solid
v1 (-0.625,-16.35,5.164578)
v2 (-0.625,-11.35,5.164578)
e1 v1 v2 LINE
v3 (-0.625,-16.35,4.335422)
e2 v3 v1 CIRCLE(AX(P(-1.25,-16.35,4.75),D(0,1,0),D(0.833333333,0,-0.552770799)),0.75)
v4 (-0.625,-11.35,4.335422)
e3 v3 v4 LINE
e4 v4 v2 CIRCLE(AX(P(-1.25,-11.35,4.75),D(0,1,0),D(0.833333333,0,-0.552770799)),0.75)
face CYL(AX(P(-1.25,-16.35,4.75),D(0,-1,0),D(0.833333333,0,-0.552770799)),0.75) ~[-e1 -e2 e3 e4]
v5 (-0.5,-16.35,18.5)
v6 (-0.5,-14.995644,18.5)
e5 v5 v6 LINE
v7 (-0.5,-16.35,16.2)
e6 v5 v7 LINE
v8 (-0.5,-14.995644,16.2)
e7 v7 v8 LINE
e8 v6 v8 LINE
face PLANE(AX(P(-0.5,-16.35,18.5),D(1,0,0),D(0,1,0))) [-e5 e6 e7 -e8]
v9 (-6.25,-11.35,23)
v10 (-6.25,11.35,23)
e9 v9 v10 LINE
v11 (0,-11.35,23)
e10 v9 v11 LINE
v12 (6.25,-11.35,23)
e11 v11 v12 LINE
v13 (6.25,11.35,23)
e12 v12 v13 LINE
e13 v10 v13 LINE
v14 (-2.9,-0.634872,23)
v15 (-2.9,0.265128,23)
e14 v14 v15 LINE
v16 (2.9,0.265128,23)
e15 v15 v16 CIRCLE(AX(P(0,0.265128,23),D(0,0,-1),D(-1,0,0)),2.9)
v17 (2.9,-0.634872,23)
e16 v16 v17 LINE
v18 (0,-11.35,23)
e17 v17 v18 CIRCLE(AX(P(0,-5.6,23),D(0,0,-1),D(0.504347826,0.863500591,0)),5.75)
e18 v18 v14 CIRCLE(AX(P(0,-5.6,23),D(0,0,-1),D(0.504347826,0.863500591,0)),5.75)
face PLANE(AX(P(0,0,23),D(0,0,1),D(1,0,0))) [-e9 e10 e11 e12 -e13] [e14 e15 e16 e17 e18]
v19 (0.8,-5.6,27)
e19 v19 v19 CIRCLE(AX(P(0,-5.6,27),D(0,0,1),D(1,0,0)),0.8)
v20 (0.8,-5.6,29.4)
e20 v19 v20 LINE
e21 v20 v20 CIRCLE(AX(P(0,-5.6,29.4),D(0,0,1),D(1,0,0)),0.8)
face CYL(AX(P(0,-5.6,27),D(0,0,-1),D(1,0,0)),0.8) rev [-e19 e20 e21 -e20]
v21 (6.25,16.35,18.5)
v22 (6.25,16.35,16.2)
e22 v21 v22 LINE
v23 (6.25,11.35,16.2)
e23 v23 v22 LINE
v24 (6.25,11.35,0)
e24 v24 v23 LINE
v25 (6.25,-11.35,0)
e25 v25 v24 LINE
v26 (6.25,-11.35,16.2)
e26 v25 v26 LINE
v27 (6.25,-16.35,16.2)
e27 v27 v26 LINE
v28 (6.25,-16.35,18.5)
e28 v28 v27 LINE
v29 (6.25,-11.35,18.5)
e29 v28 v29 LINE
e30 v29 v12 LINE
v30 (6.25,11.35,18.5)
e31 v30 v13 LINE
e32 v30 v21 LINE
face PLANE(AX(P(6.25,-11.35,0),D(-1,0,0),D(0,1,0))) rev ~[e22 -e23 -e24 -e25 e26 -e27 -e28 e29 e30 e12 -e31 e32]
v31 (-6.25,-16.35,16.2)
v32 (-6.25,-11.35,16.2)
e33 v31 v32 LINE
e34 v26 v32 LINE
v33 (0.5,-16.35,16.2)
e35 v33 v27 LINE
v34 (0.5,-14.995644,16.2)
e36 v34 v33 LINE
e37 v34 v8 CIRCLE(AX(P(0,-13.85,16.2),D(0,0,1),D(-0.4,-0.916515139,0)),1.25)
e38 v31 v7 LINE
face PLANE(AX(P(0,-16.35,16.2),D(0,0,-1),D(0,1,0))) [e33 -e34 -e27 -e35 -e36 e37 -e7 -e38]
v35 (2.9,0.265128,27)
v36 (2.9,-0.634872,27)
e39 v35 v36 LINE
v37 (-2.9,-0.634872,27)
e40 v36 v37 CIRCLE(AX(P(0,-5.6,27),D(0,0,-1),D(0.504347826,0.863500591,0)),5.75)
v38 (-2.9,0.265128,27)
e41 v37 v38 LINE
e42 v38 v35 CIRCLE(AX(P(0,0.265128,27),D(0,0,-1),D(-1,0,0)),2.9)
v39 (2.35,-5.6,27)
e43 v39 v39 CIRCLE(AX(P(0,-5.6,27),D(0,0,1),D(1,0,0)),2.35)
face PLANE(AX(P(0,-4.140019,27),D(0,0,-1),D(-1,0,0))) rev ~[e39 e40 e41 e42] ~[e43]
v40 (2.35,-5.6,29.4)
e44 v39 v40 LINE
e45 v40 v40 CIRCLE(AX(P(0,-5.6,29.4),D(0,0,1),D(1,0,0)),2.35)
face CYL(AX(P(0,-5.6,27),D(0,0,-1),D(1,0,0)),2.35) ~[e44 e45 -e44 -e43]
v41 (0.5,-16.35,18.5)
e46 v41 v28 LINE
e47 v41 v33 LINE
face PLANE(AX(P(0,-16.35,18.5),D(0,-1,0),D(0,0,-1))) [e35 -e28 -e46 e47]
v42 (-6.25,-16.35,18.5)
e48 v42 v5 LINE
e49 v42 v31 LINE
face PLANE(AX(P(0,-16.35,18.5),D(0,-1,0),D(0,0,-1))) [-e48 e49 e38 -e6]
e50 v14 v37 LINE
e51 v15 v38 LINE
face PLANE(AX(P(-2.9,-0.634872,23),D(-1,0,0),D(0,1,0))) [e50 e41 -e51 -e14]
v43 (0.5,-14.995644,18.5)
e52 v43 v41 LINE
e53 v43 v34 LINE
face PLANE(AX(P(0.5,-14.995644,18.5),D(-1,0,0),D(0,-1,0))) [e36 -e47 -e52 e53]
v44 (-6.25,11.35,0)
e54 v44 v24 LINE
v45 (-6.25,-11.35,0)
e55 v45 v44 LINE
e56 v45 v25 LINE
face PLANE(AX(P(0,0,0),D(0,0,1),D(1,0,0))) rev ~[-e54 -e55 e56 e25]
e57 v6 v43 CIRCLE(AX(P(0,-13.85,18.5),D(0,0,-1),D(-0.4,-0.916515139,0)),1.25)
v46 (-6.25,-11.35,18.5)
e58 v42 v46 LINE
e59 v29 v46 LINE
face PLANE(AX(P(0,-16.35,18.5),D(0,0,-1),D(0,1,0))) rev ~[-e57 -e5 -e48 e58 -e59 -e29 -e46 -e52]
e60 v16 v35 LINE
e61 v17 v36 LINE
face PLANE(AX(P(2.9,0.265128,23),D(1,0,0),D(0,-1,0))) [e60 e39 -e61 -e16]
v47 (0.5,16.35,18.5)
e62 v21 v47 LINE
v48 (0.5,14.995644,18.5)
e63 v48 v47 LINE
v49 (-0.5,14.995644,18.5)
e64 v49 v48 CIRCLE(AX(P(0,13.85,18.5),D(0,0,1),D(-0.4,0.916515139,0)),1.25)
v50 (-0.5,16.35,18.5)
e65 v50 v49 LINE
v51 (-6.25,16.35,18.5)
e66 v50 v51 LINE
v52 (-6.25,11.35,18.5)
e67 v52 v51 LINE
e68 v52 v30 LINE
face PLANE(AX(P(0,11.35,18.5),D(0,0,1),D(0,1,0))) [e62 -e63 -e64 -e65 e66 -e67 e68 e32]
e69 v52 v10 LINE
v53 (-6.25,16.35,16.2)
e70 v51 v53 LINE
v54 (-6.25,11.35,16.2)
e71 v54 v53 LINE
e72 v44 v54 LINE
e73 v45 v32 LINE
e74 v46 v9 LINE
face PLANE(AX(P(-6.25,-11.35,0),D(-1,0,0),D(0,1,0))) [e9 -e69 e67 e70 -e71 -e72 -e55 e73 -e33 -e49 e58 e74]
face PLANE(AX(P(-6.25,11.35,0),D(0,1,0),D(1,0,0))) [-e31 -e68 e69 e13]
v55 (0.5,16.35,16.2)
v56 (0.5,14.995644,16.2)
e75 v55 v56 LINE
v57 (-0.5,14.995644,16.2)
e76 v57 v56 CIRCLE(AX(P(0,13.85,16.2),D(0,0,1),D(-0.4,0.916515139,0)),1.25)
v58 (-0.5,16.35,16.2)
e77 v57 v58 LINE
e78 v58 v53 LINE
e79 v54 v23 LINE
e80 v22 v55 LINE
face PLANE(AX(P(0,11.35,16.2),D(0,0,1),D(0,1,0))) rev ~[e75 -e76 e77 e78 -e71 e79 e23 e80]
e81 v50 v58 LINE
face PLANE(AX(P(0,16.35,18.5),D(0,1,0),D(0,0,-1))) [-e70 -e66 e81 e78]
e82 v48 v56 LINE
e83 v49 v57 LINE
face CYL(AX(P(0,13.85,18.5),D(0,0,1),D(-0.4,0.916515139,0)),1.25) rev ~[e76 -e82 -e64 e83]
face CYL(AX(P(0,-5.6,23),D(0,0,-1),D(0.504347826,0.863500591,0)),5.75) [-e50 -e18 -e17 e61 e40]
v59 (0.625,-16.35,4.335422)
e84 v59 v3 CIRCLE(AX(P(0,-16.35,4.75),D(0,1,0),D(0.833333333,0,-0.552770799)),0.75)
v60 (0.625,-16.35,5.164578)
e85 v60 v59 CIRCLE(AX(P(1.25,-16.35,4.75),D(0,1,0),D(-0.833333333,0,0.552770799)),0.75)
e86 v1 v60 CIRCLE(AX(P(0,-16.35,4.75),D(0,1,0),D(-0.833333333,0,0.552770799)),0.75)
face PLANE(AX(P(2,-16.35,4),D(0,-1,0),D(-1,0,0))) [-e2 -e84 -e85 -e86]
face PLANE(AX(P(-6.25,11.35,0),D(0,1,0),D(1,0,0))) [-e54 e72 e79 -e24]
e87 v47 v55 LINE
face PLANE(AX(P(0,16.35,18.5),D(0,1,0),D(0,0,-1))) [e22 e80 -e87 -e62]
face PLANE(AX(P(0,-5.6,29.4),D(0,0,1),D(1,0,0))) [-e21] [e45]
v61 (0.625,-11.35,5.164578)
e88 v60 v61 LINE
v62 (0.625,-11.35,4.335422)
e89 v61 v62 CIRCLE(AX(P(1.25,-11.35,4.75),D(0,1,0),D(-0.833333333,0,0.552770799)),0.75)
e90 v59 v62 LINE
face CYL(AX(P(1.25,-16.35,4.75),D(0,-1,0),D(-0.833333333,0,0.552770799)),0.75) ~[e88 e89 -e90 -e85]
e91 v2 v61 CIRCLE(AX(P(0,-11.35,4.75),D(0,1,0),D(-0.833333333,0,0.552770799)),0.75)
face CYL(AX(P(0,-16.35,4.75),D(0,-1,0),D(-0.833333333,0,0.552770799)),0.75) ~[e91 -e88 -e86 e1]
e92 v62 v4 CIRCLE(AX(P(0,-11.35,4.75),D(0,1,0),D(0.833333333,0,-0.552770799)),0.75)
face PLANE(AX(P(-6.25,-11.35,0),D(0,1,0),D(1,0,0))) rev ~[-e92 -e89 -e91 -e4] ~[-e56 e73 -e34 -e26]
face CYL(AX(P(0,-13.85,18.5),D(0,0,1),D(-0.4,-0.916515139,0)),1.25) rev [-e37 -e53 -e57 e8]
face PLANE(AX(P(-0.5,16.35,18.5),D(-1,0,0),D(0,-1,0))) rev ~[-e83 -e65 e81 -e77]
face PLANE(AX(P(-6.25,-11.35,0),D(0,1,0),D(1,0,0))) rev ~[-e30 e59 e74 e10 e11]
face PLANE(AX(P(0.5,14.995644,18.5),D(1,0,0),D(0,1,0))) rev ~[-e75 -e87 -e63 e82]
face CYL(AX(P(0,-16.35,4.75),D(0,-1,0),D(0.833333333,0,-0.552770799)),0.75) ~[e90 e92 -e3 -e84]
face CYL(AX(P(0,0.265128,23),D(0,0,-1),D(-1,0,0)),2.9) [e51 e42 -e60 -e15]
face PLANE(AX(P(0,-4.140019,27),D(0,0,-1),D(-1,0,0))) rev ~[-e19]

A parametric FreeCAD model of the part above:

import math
import FreeCAD as App
import Part
import Sketcher

V = App.Vector
Q = App.Units.Quantity

doc = App.newDocument("Part")
params = doc.addObject("Spreadsheet::Sheet", "Params")
for row, (alias, value) in enumerate([
    ("sketch1_width", "12.5 mm"),
    ("sketch1_height", "22.7 mm"),
    ("pad1_length", "23 mm"),
    ("sketch2_radius", "2.9 mm"),
    ("sketch2_radius2", "5.75 mm"),
    ("sketch2_height", "0.9 mm"),
    ("pad2_length", "4 mm"),
    ("sketch3_width", "5 mm"),
    ("sketch3_height", "2.3 mm"),
    ("pad3_length", "12.5 mm"),
    ("sketch4_width", "1 mm"),
    ("sketch4_radius", "1.25 mm"),
    ("sketch5_width", "1 mm"),
    ("sketch5_radius", "1.25 mm"),
    ("sketch6_width", "4 mm"),
    ("sketch6_height", "5 mm"),
    ("pad4_length", "1.5 mm"),
    ("sketch7_diameter", "4.7 mm"),
    ("sketch7_diameter2", "1.6 mm"),
    ("pad5_length", "2.4 mm"),
    ("sketch8_radius", "0.75 mm"),
    ("pocket3_length", "5 mm"),
], start=1):
    params.set(f"A{row}", alias)
    params.set(f"B{row}", "=" + value)
    params.setAlias(f"B{row}", alias)

body = doc.addObject("PartDesign::Body", "Body")

# Sketch on XY plane
sketch1 = body.newObject("Sketcher::SketchObject", "Sketch")
sketch1.AttachmentSupport = (doc.getObject("XY_Plane"), [""])
sketch1.MapMode = "FlatFace"
sketch1.addGeometry(Part.LineSegment(V(-6.25, 11.35, 0), V(-6.25, -11.35, 0)), False)
sketch1.addGeometry(Part.LineSegment(V(-6.25, -11.35, 0), V(6.25, -11.35, 0)), False)
sketch1.addGeometry(Part.LineSegment(V(6.25, -11.35, 0), V(6.25, 11.35, 0)), False)
sketch1.addGeometry(Part.LineSegment(V(6.25, 11.35, 0), V(-6.25, 11.35, 0)), False)
sketch1.addConstraint(Sketcher.Constraint("Coincident", 0, 2, 1, 1))
sketch1.addConstraint(Sketcher.Constraint("Coincident", 1, 2, 2, 1))
sketch1.addConstraint(Sketcher.Constraint("Coincident", 2, 2, 3, 1))
sketch1.addConstraint(Sketcher.Constraint("Coincident", 3, 2, 0, 1))
sketch1.addConstraint(Sketcher.Constraint("Vertical", 0))
sketch1.addConstraint(Sketcher.Constraint("Horizontal", 1))
sketch1.addConstraint(Sketcher.Constraint("Vertical", 2))
sketch1.addConstraint(Sketcher.Constraint("Horizontal", 3))
sketch1.addConstraint(Sketcher.Constraint("Symmetric", 0, 2, 2, 2, -1, 1))
sketch1.addConstraint(Sketcher.Constraint("DistanceX", 1, 1, 1, 2, Q("12.5 mm")))
sketch1.addConstraint(Sketcher.Constraint("DistanceY", 0, 2, 0, 1, Q("22.7 mm")))
sketch1.setExpression("Constraints[9]", "Params.sketch1_width")
sketch1.setExpression("Constraints[10]", "Params.sketch1_height")
pad1 = body.newObject("PartDesign::Pad", "Pad")
pad1.Profile = sketch1
pad1.setExpression("Length", "Params.pad1_length")

# Sketch on XY plane
sketch2 = body.newObject("Sketcher::SketchObject", "Sketch001")
sketch2.AttachmentSupport = (doc.getObject("XY_Plane"), [""])
sketch2.MapMode = "FlatFace"
sketch2.AttachmentOffset = App.Placement(V(0, 0, 23), App.Rotation())
sketch2.addGeometry(Part.LineSegment(V(2.9, -0.634872, 0), V(2.9, 0.265128, 0)), False)
sketch2.addGeometry(Part.ArcOfCircle(Part.Circle(V(0, 0.265128, 0), V(0, 0, 1), 2.9), math.radians(0), math.radians(180)), False)
sketch2.addGeometry(Part.LineSegment(V(-2.9, 0.265128, 0), V(-2.9, -0.634872, 0)), False)
sketch2.addGeometry(Part.ArcOfCircle(Part.Circle(V(0, -5.6, 0), V(0, 0, 1), 5.75), math.radians(120.288069), math.radians(419.711931)), False)
sketch2.addConstraint(Sketcher.Constraint("Tangent", 0, 2, 1, 1))
sketch2.addConstraint(Sketcher.Constraint("Tangent", 1, 2, 2, 1))
sketch2.addConstraint(Sketcher.Constraint("Coincident", 2, 2, 3, 1))
sketch2.addConstraint(Sketcher.Constraint("Coincident", 3, 2, 0, 1))
sketch2.addConstraint(Sketcher.Constraint("Vertical", 0))
sketch2.addConstraint(Sketcher.Constraint("Vertical", 2))
sketch2.addConstraint(Sketcher.Constraint("Symmetric", 2, 2, 3, 2, -2))
sketch2.addConstraint(Sketcher.Constraint("Radius", 1, Q("2.9 mm")))
sketch2.addConstraint(Sketcher.Constraint("Radius", 3, Q("5.75 mm")))
sketch2.addConstraint(Sketcher.Constraint("DistanceY", 0, 1, 0, 2, Q("0.9 mm")))
sketch2.addConstraint(Sketcher.Constraint("DistanceY", 3, 3, -1, 1, Q("5.6 mm")))
sketch2.setExpression("Constraints[7]", "Params.sketch2_radius")
sketch2.setExpression("Constraints[8]", "Params.sketch2_radius2")
sketch2.setExpression("Constraints[9]", "Params.sketch2_height")
pad2 = body.newObject("PartDesign::Pad", "Pad001")
pad2.Profile = sketch2
pad2.setExpression("Length", "Params.pad2_length")

# Sketch on YZ plane
sketch3 = body.newObject("Sketcher::SketchObject", "Sketch002")
sketch3.AttachmentSupport = (doc.getObject("YZ_Plane"), [""])
sketch3.MapMode = "FlatFace"
sketch3.addGeometry(Part.LineSegment(V(16.35, 18.5, 0), V(11.35, 18.5, 0)), False)
sketch3.addGeometry(Part.LineSegment(V(11.35, 18.5, 0), V(11.35, 16.2, 0)), False)
sketch3.addGeometry(Part.LineSegment(V(11.35, 16.2, 0), V(16.35, 16.2, 0)), False)
sketch3.addGeometry(Part.LineSegment(V(16.35, 16.2, 0), V(16.35, 18.5, 0)), False)
sketch3.addGeometry(Part.LineSegment(V(-11.35, 18.5, 0), V(-16.35, 18.5, 0)), False)
sketch3.addGeometry(Part.LineSegment(V(-16.35, 18.5, 0), V(-16.35, 16.2, 0)), False)
sketch3.addGeometry(Part.LineSegment(V(-16.35, 16.2, 0), V(-11.35, 16.2, 0)), False)
sketch3.addGeometry(Part.LineSegment(V(-11.35, 16.2, 0), V(-11.35, 18.5, 0)), False)
sketch3.addConstraint(Sketcher.Constraint("Coincident", 0, 2, 1, 1))
sketch3.addConstraint(Sketcher.Constraint("Coincident", 1, 2, 2, 1))
sketch3.addConstraint(Sketcher.Constraint("Coincident", 2, 2, 3, 1))
sketch3.addConstraint(Sketcher.Constraint("Coincident", 3, 2, 0, 1))
sketch3.addConstraint(Sketcher.Constraint("Coincident", 4, 2, 5, 1))
sketch3.addConstraint(Sketcher.Constraint("Coincident", 5, 2, 6, 1))
sketch3.addConstraint(Sketcher.Constraint("Coincident", 6, 2, 7, 1))
sketch3.addConstraint(Sketcher.Constraint("Coincident", 7, 2, 4, 1))
sketch3.addConstraint(Sketcher.Constraint("Horizontal", 0))
sketch3.addConstraint(Sketcher.Constraint("Vertical", 1))
sketch3.addConstraint(Sketcher.Constraint("Horizontal", 2))
sketch3.addConstraint(Sketcher.Constraint("Vertical", 3))
sketch3.addConstraint(Sketcher.Constraint("Horizontal", 4))
sketch3.addConstraint(Sketcher.Constraint("Vertical", 5))
sketch3.addConstraint(Sketcher.Constraint("Horizontal", 6))
sketch3.addConstraint(Sketcher.Constraint("Vertical", 7))
sketch3.addConstraint(Sketcher.Constraint("Symmetric", 3, 2, 4, 2, -2))
sketch3.addConstraint(Sketcher.Constraint("Symmetric", 1, 2, 6, 2, -2))
sketch3.addConstraint(Sketcher.Constraint("DistanceX", 0, 2, 0, 1, Q("5 mm")))
sketch3.addConstraint(Sketcher.Constraint("DistanceY", 1, 2, 1, 1, Q("2.3 mm")))
sketch3.addConstraint(Sketcher.Constraint("DistanceY", -1, 1, 0, 2, Q("18.5 mm")))
sketch3.addConstraint(Sketcher.Constraint("DistanceX", 4, 2, 0, 2, Q("27.7 mm")))
sketch3.setExpression("Constraints[18]", "Params.sketch3_width")
sketch3.setExpression("Constraints[19]", "Params.sketch3_height")
pad3 = body.newObject("PartDesign::Pad", "Pad002")
pad3.Profile = sketch3
pad3.setExpression("Length", "Params.pad3_length")
pad3.Midplane = True

# Sketch on XY plane
sketch4 = body.newObject("Sketcher::SketchObject", "Sketch003")
sketch4.AttachmentSupport = (doc.getObject("XY_Plane"), [""])
sketch4.MapMode = "FlatFace"
sketch4.AttachmentOffset = App.Placement(V(0, 0, 18.5), App.Rotation())
sketch4.addGeometry(Part.LineSegment(V(0.5, 16.35, 0), V(-0.5, 16.35, 0)), False)
sketch4.addGeometry(Part.LineSegment(V(-0.5, 16.35, 0), V(-0.5, 14.995644, 0)), False)
sketch4.addGeometry(Part.ArcOfCircle(Part.Circle(V(0, 13.85, 0), V(0, 0, 1), 1.25), math.radians(113.578178), math.radians(426.421822)), False)
sketch4.addGeometry(Part.LineSegment(V(0.5, 14.995644, 0), V(0.5, 16.35, 0)), False)
sketch4.addConstraint(Sketcher.Constraint("Coincident", 0, 2, 1, 1))
sketch4.addConstraint(Sketcher.Constraint("Coincident", 1, 2, 2, 1))
sketch4.addConstraint(Sketcher.Constraint("Coincident", 2, 2, 3, 1))
sketch4.addConstraint(Sketcher.Constraint("Coincident", 3, 2, 0, 1))
sketch4.addConstraint(Sketcher.Constraint("Horizontal", 0))
sketch4.addConstraint(Sketcher.Constraint("Vertical", 1))
sketch4.addConstraint(Sketcher.Constraint("Vertical", 3))
sketch4.addConstraint(Sketcher.Constraint("Symmetric", 1, 2, 2, 2, -2))
sketch4.addConstraint(Sketcher.Constraint("DistanceX", 0, 2, 0, 1, Q("1 mm")))
sketch4.addConstraint(Sketcher.Constraint("Radius", 2, Q("1.25 mm")))
sketch4.addConstraint(Sketcher.Constraint("DistanceY", 2, 3, 0, 2, Q("2.5 mm")))
sketch4.addConstraint(Sketcher.Constraint("DistanceY", -1, 1, 2, 3, Q("13.85 mm")))
sketch4.setExpression("Constraints[8]", "Params.sketch4_width")
sketch4.setExpression("Constraints[9]", "Params.sketch4_radius")
pocket1 = body.newObject("PartDesign::Pocket", "Pocket")
pocket1.Profile = sketch4
pocket1.Type = "UpToFirst"

# Sketch on XY plane
sketch5 = body.newObject("Sketcher::SketchObject", "Sketch004")
sketch5.AttachmentSupport = (doc.getObject("XY_Plane"), [""])
sketch5.MapMode = "FlatFace"
sketch5.AttachmentOffset = App.Placement(V(0, 0, 18.5), App.Rotation())
sketch5.addGeometry(Part.LineSegment(V(-0.5, -14.995644, 0), V(-0.5, -16.35, 0)), False)
sketch5.addGeometry(Part.LineSegment(V(-0.5, -16.35, 0), V(0.5, -16.35, 0)), False)
sketch5.addGeometry(Part.LineSegment(V(0.5, -16.35, 0), V(0.5, -14.995644, 0)), False)
sketch5.addGeometry(Part.ArcOfCircle(Part.Circle(V(0, -13.85, 0), V(0, 0, 1), 1.25), math.radians(-66.421822), math.radians(246.421822)), False)
sketch5.addConstraint(Sketcher.Constraint("Coincident", 0, 2, 1, 1))
sketch5.addConstraint(Sketcher.Constraint("Coincident", 1, 2, 2, 1))
sketch5.addConstraint(Sketcher.Constraint("Coincident", 2, 2, 3, 1))
sketch5.addConstraint(Sketcher.Constraint("Coincident", 3, 2, 0, 1))
sketch5.addConstraint(Sketcher.Constraint("Vertical", 0))
sketch5.addConstraint(Sketcher.Constraint("Horizontal", 1))
sketch5.addConstraint(Sketcher.Constraint("Vertical", 2))
sketch5.addConstraint(Sketcher.Constraint("Symmetric", 2, 2, 3, 2, -2))
sketch5.addConstraint(Sketcher.Constraint("DistanceX", 1, 1, 1, 2, Q("1 mm")))
sketch5.addConstraint(Sketcher.Constraint("Radius", 3, Q("1.25 mm")))
sketch5.addConstraint(Sketcher.Constraint("DistanceY", 0, 2, 3, 3, Q("2.5 mm")))
sketch5.addConstraint(Sketcher.Constraint("DistanceY", 3, 3, -1, 1, Q("13.85 mm")))
sketch5.setExpression("Constraints[8]", "Params.sketch5_width")
sketch5.setExpression("Constraints[9]", "Params.sketch5_radius")
pocket2 = body.newObject("PartDesign::Pocket", "Pocket001")
pocket2.Profile = sketch5
pocket2.Type = "UpToFirst"

# Sketch on XY plane
sketch6 = body.newObject("Sketcher::SketchObject", "Sketch005")
sketch6.AttachmentSupport = (doc.getObject("XY_Plane"), [""])
sketch6.MapMode = "FlatFace"
sketch6.AttachmentOffset = App.Placement(V(0, 0, 4), App.Rotation())
sketch6.addGeometry(Part.LineSegment(V(2, -11.35, 0), V(2, -16.35, 0)), False)
sketch6.addGeometry(Part.LineSegment(V(2, -16.35, 0), V(-2, -16.35, 0)), False)
sketch6.addGeometry(Part.LineSegment(V(-2, -16.35, 0), V(-2, -11.35, 0)), False)
sketch6.addGeometry(Part.LineSegment(V(-2, -11.35, 0), V(2, -11.35, 0)), False)
sketch6.addConstraint(Sketcher.Constraint("Coincident", 0, 2, 1, 1))
sketch6.addConstraint(Sketcher.Constraint("Coincident", 1, 2, 2, 1))
sketch6.addConstraint(Sketcher.Constraint("Coincident", 2, 2, 3, 1))
sketch6.addConstraint(Sketcher.Constraint("Coincident", 3, 2, 0, 1))
sketch6.addConstraint(Sketcher.Constraint("Vertical", 0))
sketch6.addConstraint(Sketcher.Constraint("Horizontal", 1))
sketch6.addConstraint(Sketcher.Constraint("Vertical", 2))
sketch6.addConstraint(Sketcher.Constraint("Horizontal", 3))
sketch6.addConstraint(Sketcher.Constraint("DistanceX", 1, 2, 1, 1, Q("4 mm")))
sketch6.addConstraint(Sketcher.Constraint("DistanceY", 0, 2, 0, 1, Q("5 mm")))
sketch6.addConstraint(Sketcher.Constraint("DistanceX", -1, 1, 0, 2, Q("2 mm")))
sketch6.addConstraint(Sketcher.Constraint("DistanceY", 0, 2, -1, 1, Q("16.35 mm")))
sketch6.setExpression("Constraints[8]", "Params.sketch6_width")
sketch6.setExpression("Constraints[9]", "Params.sketch6_height")
pad4 = body.newObject("PartDesign::Pad", "Pad003")
pad4.Profile = sketch6
pad4.setExpression("Length", "Params.pad4_length")

# Sketch on XY plane
sketch7 = body.newObject("Sketcher::SketchObject", "Sketch006")
sketch7.AttachmentSupport = (doc.getObject("XY_Plane"), [""])
sketch7.MapMode = "FlatFace"
sketch7.AttachmentOffset = App.Placement(V(0, 0, 27), App.Rotation())
sketch7.addGeometry(Part.Circle(V(0, -5.6, 0), V(0, 0, 1), 2.35), False)
sketch7.addGeometry(Part.Circle(V(0, -5.6, 0), V(0, 0, 1), 0.8), False)
sketch7.addConstraint(Sketcher.Constraint("Coincident", 1, 3, 0, 3))
sketch7.addConstraint(Sketcher.Constraint("PointOnObject", 0, 3, -2))
sketch7.addConstraint(Sketcher.Constraint("Diameter", 0, Q("4.7 mm")))
sketch7.addConstraint(Sketcher.Constraint("Diameter", 1, Q("1.6 mm")))
sketch7.addConstraint(Sketcher.Constraint("DistanceY", 0, 3, -1, 1, Q("5.6 mm")))
sketch7.setExpression("Constraints[2]", "Params.sketch7_diameter")
sketch7.setExpression("Constraints[3]", "Params.sketch7_diameter2")
pad5 = body.newObject("PartDesign::Pad", "Pad004")
pad5.Profile = sketch7
pad5.setExpression("Length", "Params.pad5_length")

# Sketch on XZ plane
sketch8 = body.newObject("Sketcher::SketchObject", "Sketch007")
sketch8.AttachmentSupport = (doc.getObject("XZ_Plane"), [""])
sketch8.MapMode = "FlatFace"
sketch8.AttachmentOffset = App.Placement(V(0, 0, 16.35), App.Rotation())
sketch8.addGeometry(Part.LineSegment(V(-2.257353, 5.801859, 0), V(-2.257353, 3.698141, 0)), False)
sketch8.addGeometry(Part.LineSegment(V(-2.257353, 3.698141, 0), V(2.257353, 3.698141, 0)), False)
sketch8.addGeometry(Part.LineSegment(V(2.257353, 3.698141, 0), V(2.257353, 5.801859, 0)), False)
sketch8.addGeometry(Part.LineSegment(V(2.257353, 5.801859, 0), V(-2.257353, 5.801859, 0)), False)
sketch8.addGeometry(Part.ArcOfCircle(Part.Circle(V(0, 4.75, 0), V(0, 0, 1), 0.75), math.radians(-146.44269), math.radians(-33.55731)), False)
sketch8.addGeometry(Part.ArcOfCircle(Part.Circle(V(-1.25, 4.75, 0), V(0, 0, 1), 0.75), math.radians(33.55731), math.radians(326.44269)), False)
sketch8.addGeometry(Part.ArcOfCircle(Part.Circle(V(0, 4.75, 0), V(0, 0, 1), 0.75), math.radians(33.55731), math.radians(146.44269)), False)
sketch8.addGeometry(Part.ArcOfCircle(Part.Circle(V(1.25, 4.75, 0), V(0, 0, 1), 0.75), math.radians(-146.44269), math.radians(146.44269)), False)
sketch8.addConstraint(Sketcher.Constraint("Coincident", 0, 2, 1, 1))
sketch8.addConstraint(Sketcher.Constraint("Coincident", 1, 2, 2, 1))
sketch8.addConstraint(Sketcher.Constraint("Coincident", 2, 2, 3, 1))
sketch8.addConstraint(Sketcher.Constraint("Coincident", 3, 2, 0, 1))
sketch8.addConstraint(Sketcher.Constraint("Coincident", 4, 1, 5, 2))
sketch8.addConstraint(Sketcher.Constraint("Coincident", 5, 1, 6, 2))
sketch8.addConstraint(Sketcher.Constraint("Coincident", 6, 1, 7, 2))
sketch8.addConstraint(Sketcher.Constraint("Coincident", 7, 1, 4, 2))
sketch8.addConstraint(Sketcher.Constraint("Vertical", 0))
sketch8.addConstraint(Sketcher.Constraint("Horizontal", 1))
sketch8.addConstraint(Sketcher.Constraint("Vertical", 2))
sketch8.addConstraint(Sketcher.Constraint("Horizontal", 3))
sketch8.addConstraint(Sketcher.Constraint("Coincident", 6, 3, 4, 3))
sketch8.addConstraint(Sketcher.Constraint("Equal", 4, 5))
sketch8.addConstraint(Sketcher.Constraint("Equal", 5, 6))
sketch8.addConstraint(Sketcher.Constraint("Equal", 6, 7))
sketch8.addConstraint(Sketcher.Constraint("Symmetric", 5, 3, 7, 3, -2))
sketch8.addConstraint(Sketcher.Constraint("PointOnObject", 4, 3, -2))
sketch8.addConstraint(Sketcher.Constraint("Horizontal", 4, 3, 5, 3))
sketch8.addConstraint(Sketcher.Constraint("Radius", 4, Q("0.75 mm")))
sketch8.addConstraint(Sketcher.Constraint("DistanceX", 5, 3, 7, 3, Q("2.5 mm")))
sketch8.addConstraint(Sketcher.Constraint("DistanceY", -1, 1, 4, 3, Q("4.75 mm")))
sketch8.addConstraint(Sketcher.Constraint("DistanceY", 0, 2, 0, 1, Q("2.103719 mm")))
sketch8.addConstraint(Sketcher.Constraint("DistanceX", 1, 1, 1, 2, Q("4.514707 mm")))
sketch8.addConstraint(Sketcher.Constraint("DistanceY", -1, 1, 0, 2, Q("3.698141 mm")))
sketch8.addConstraint(Sketcher.Constraint("DistanceX", 0, 2, -1, 1, Q("2.257353 mm")))
sketch8.setExpression("Constraints[19]", "Params.sketch8_radius")
pocket3 = body.newObject("PartDesign::Pocket", "Pocket002")
pocket3.Profile = sketch8
pocket3.setExpression("Length", "Params.pocket3_length")

doc.recompute()
